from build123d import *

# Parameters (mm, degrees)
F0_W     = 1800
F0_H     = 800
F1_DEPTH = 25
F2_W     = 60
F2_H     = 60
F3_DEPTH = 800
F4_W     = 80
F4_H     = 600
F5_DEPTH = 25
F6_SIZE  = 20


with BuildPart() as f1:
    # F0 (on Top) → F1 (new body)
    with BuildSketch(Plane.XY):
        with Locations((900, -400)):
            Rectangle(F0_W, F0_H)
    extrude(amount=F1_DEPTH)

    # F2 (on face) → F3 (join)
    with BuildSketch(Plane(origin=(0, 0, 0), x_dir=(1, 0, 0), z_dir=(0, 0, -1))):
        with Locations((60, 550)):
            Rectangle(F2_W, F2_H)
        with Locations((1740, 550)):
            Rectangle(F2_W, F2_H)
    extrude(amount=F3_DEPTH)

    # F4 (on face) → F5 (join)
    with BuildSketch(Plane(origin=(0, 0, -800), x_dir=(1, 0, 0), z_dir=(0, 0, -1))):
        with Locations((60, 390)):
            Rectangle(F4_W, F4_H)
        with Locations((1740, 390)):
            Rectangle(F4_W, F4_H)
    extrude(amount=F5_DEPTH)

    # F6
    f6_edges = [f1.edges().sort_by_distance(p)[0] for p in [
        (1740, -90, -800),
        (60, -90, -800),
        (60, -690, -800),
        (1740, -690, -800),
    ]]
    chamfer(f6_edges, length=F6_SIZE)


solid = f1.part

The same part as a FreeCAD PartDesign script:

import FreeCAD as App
import Part
import Sketcher
from FreeCAD import Vector


def edges_at(feature, points):
    """Names of the edges that pass closest to the given points."""
    edges = feature.Shape.Edges
    near = lambda p: min(range(len(edges)), key=lambda i: edges[i].distToShape(Part.Vertex(*p))[0])
    return sorted({f"Edge{near(p) + 1}" for p in points})


def add_polygon(sketch, points):
    """Adds a closed chain of lines whose ends are joined by coincident constraints."""
    first, n = sketch.GeometryCount, len(points)
    for a, b in zip(points, points[1:] + points[:1]):
        sketch.addGeometry(Part.LineSegment(App.Vector(*a, 0), App.Vector(*b, 0)), False)
    for i in range(n):
        sketch.addConstraint(Sketcher.Constraint("Coincident", first + i, 2, first + (i + 1) % n, 1))

doc = App.newDocument("Part")
body = doc.addObject("PartDesign::Body", "Body")

# Sketch on XY plane
sketch1 = body.newObject("Sketcher::SketchObject", "Sketch")
sketch1.AttachmentSupport = (doc.getObject("XY_Plane"), [""])
sketch1.MapMode = "FlatFace"
add_polygon(sketch1, [(0, 0), (0, -800), (1800, -800), (1800, 0)])  # lines 0-3
sketch1.addConstraint(Sketcher.Constraint("Vertical", 0))
sketch1.addConstraint(Sketcher.Constraint("Horizontal", 1))
sketch1.addConstraint(Sketcher.Constraint("Vertical", 2))
sketch1.addConstraint(Sketcher.Constraint("Horizontal", 3))
sketch1.addConstraint(Sketcher.Constraint("Coincident", 3, 2, -1, 1))
sketch1.addConstraint(Sketcher.Constraint("DistanceX", 1, 1, 1, 2, 1800.0))
sketch1.addConstraint(Sketcher.Constraint("DistanceY", 0, 2, 0, 1, 800.0))
pad1 = body.newObject("PartDesign::Pad", "Pad")
pad1.Profile = sketch1
pad1.Length = 25

# Sketch on XY plane
sketch2 = body.newObject("Sketcher::SketchObject", "Sketch001")
sketch2.AttachmentSupport = (doc.getObject("XY_Plane"), [""])
sketch2.MapMode = "FlatFace"
add_polygon(sketch2, [(30, -580), (30, -520), (90, -520), (90, -580)])  # lines 0-3
add_polygon(sketch2, [(1710, -580), (1710, -520), (1770, -520), (1770, -580)])  # lines 4-7
sketch2.addConstraint(Sketcher.Constraint("Vertical", 0))
sketch2.addConstraint(Sketcher.Constraint("Horizontal", 1))
sketch2.addConstraint(Sketcher.Constraint("Vertical", 2))
sketch2.addConstraint(Sketcher.Constraint("Horizontal", 3))
sketch2.addConstraint(Sketcher.Constraint("Vertical", 4))
sketch2.addConstraint(Sketcher.Constraint("Horizontal", 5))
sketch2.addConstraint(Sketcher.Constraint("Vertical", 6))
sketch2.addConstraint(Sketcher.Constraint("Horizontal", 7))
sketch2.addConstraint(Sketcher.Constraint("Horizontal", 1, 2, 4, 2))
sketch2.addConstraint(Sketcher.Constraint("Horizontal", 3, 2, 6, 2))
sketch2.addConstraint(Sketcher.Constraint("Equal", 3, 5))
sketch2.addConstraint(Sketcher.Constraint("Equal", 7, 0))
sketch2.addConstraint(Sketcher.Constraint("DistanceX", 1, 1, 1, 2, 60.0))
sketch2.addConstraint(Sketcher.Constraint("DistanceX", -1, 1, 0, 2, 30.0))
sketch2.addConstraint(Sketcher.Constraint("DistanceY", 0, 2, -1, 1, 520.0))
sketch2.addConstraint(Sketcher.Constraint("DistanceX", -1, 1, 4, 2, 1710.0))
pad2 = body.newObject("PartDesign::Pad", "Pad001")
pad2.Profile = sketch2
pad2.Length = 800
pad2.Reversed = True

# Sketch on XY plane
sketch3 = body.newObject("Sketcher::SketchObject", "Sketch002")
sketch3.AttachmentSupport = (doc.getObject("XY_Plane"), [""])
sketch3.MapMode = "FlatFace"
sketch3.AttachmentOffset = App.Placement(Vector(0, 0, -800), App.Rotation())
add_polygon(sketch3, [(20, -690), (20, -90), (100, -90), (100, -690)])  # lines 0-3
add_polygon(sketch3, [(1700, -690), (1700, -90), (1780, -90), (1780, -690)])  # lines 4-7
sketch3.addConstraint(Sketcher.Constraint("Vertical", 0))
sketch3.addConstraint(Sketcher.Constraint("Horizontal", 1))
sketch3.addConstraint(Sketcher.Constraint("Vertical", 2))
sketch3.addConstraint(Sketcher.Constraint("Horizontal", 3))
sketch3.addConstraint(Sketcher.Constraint("Vertical", 4))
sketch3.addConstraint(Sketcher.Constraint("Horizontal", 5))
sketch3.addConstraint(Sketcher.Constraint("Vertical", 6))
sketch3.addConstraint(Sketcher.Constraint("Horizontal", 7))
sketch3.addConstraint(Sketcher.Constraint("Horizontal", 1, 2, 4, 2))
sketch3.addConstraint(Sketcher.Constraint("Horizontal", 3, 2, 6, 2))
sketch3.addConstraint(Sketcher.Constraint("Equal", 3, 5))
sketch3.addConstraint(Sketcher.Constraint("DistanceX", 1, 1, 1, 2, 80.0))
sketch3.addConstraint(Sketcher.Constraint("DistanceY", 0, 1, 0, 2, 600.0))
sketch3.addConstraint(Sketcher.Constraint("DistanceX", -1, 1, 0, 2, 20.0))
sketch3.addConstraint(Sketcher.Constraint("DistanceY", 0, 2, -1, 1, 90.0))
sketch3.addConstraint(Sketcher.Constraint("DistanceX", -1, 1, 4, 2, 1700.0))
pad3 = body.newObject("PartDesign::Pad", "Pad002")
pad3.Profile = sketch3
pad3.Length = 25
pad3.Reversed = True
doc.recompute()

chamfer = body.newObject("PartDesign::Chamfer", "Chamfer")
chamfer.Base = (pad3, edges_at(pad3, [
    (1740, -90, -800),
    (60, -90, -800),
    (60, -690, -800),
    (1740, -690, -800),
]))
chamfer.Size = 20

doc.recompute()
